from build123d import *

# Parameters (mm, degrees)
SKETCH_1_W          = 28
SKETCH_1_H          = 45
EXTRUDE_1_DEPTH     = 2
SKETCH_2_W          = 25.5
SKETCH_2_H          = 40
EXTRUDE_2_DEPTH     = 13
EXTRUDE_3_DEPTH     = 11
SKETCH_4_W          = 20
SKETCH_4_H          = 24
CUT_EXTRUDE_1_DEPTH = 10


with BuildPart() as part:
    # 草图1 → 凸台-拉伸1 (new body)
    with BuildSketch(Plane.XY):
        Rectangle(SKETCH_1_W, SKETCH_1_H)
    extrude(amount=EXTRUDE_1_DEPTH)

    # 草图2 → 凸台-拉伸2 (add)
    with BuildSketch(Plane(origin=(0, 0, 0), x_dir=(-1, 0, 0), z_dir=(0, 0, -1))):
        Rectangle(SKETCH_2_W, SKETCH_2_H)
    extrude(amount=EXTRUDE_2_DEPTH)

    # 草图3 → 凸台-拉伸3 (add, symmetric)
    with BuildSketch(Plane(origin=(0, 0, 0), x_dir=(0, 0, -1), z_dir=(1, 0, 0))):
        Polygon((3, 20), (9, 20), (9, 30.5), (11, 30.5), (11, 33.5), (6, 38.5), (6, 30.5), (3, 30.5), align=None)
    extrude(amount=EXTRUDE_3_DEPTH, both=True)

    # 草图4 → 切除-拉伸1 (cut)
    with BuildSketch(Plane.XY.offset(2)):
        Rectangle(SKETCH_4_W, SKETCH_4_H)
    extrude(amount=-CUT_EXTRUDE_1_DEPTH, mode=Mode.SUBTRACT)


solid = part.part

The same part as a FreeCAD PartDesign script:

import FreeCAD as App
import Part
import Sketcher


def add_polygon(sketch, points):
    """Adds a closed chain of lines whose ends are joined by coincident constraints."""
    first, n = sketch.GeometryCount, len(points)
    for a, b in zip(points, points[1:] + points[:1]):
        sketch.addGeometry(Part.LineSegment(App.Vector(*a, 0), App.Vector(*b, 0)), False)
    for i in range(n):
        sketch.addConstraint(Sketcher.Constraint("Coincident", first + i, 2, first + (i + 1) % n, 1))

doc = App.newDocument("Part")
body = doc.addObject("PartDesign::Body", "Body")

# Sketch on XY plane
sketch1 = body.newObject("Sketcher::SketchObject", "Sketch")
sketch1.AttachmentSupport = (doc.getObject("XY_Plane"), [""])
sketch1.MapMode = "FlatFace"
add_polygon(sketch1, [(-14, 22.5), (-14, -22.5), (14, -22.5), (14, 22.5)])  # lines 0-3
sketch1.addConstraint(Sketcher.Constraint("Vertical", 0))
sketch1.addConstraint(Sketcher.Constraint("Horizontal", 1))
sketch1.addConstraint(Sketcher.Constraint("Vertical", 2))
sketch1.addConstraint(Sketcher.Constraint("Horizontal", 3))
sketch1.addConstraint(Sketcher.Constraint("Symmetric", 0, 2, 2, 2, -1, 1))
sketch1.addConstraint(Sketcher.Constraint("DistanceX", 1, 1, 1, 2, 28.0))
sketch1.addConstraint(Sketcher.Constraint("DistanceY", 0, 2, 0, 1, 45.0))
pad1 = body.newObject("PartDesign::Pad", "Pad")
pad1.Profile = sketch1
pad1.Length = 2

# Sketch on XY plane
sketch2 = body.newObject("Sketcher::SketchObject", "Sketch001")
sketch2.AttachmentSupport = (doc.getObject("XY_Plane"), [""])
sketch2.MapMode = "FlatFace"
add_polygon(sketch2, [(12.75, 20), (12.75, -20), (-12.75, -20), (-12.75, 20)])  # lines 0-3
sketch2.addConstraint(Sketcher.Constraint("Vertical", 0))
sketch2.addConstraint(Sketcher.Constraint("Horizontal", 1))
sketch2.addConstraint(Sketcher.Constraint("Vertical", 2))
sketch2.addConstraint(Sketcher.Constraint("Horizontal", 3))
sketch2.addConstraint(Sketcher.Constraint("Symmetric", 0, 2, 2, 2, -1, 1))
sketch2.addConstraint(Sketcher.Constraint("DistanceY", 0, 2, 0, 1, 40.0))
sketch2.addConstraint(Sketcher.Constraint("DistanceX", 1, 2, 1, 1, 25.5))
pad2 = body.newObject("PartDesign::Pad", "Pad001")
pad2.Profile = sketch2
pad2.Length = 13
pad2.Reversed = True

# Sketch on YZ plane
sketch3 = body.newObject("Sketcher::SketchObject", "Sketch002")
sketch3.AttachmentSupport = (doc.getObject("YZ_Plane"), [""])
sketch3.MapMode = "FlatFace"
add_polygon(sketch3, [(20, -3), (20, -9), (30.5, -9), (30.5, -11), (33.5, -11), (38.5, -6), (30.5, -6), (30.5, -3)])  # lines 0-7
sketch3.addConstraint(Sketcher.Constraint("Vertical", 0))
sketch3.addConstraint(Sketcher.Constraint("Horizontal", 1))
sketch3.addConstraint(Sketcher.Constraint("Vertical", 2))
sketch3.addConstraint(Sketcher.Constraint("Horizontal", 3))
sketch3.addConstraint(Sketcher.Constraint("Horizontal", 5))
sketch3.addConstraint(Sketcher.Constraint("Vertical", 6))
sketch3.addConstraint(Sketcher.Constraint("Horizontal", 7))
sketch3.addConstraint(Sketcher.Constraint("Vertical", 2, 2, 5, 2))
sketch3.addConstraint(Sketcher.Constraint("Equal", 3, 6))
sketch3.addConstraint(Sketcher.Constraint("DistanceX", 3, 1, 3, 2, 3.0))
sketch3.addConstraint(Sketcher.Constraint("DistanceX", 5, 2, 5, 1, 8.0))
sketch3.addConstraint(Sketcher.Constraint("DistanceY", 0, 2, 0, 1, 6.0))
sketch3.addConstraint(Sketcher.Constraint("DistanceY", 2, 2, 2, 1, 2.0))
sketch3.addConstraint(Sketcher.Constraint("DistanceX", 1, 1, 1, 2, 10.5))
sketch3.addConstraint(Sketcher.Constraint("DistanceX", -1, 1, 0, 2, 20.0))
sketch3.addConstraint(Sketcher.Constraint("DistanceY", 0, 2, -1, 1, 9.0))
pad3 = body.newObject("PartDesign::Pad", "Pad002")
pad3.Profile = sketch3
pad3.Length = 22
pad3.Midplane = True

# Sketch on XY plane
sketch4 = body.newObject("Sketcher::SketchObject", "Sketch003")
sketch4.AttachmentSupport = (doc.getObject("XY_Plane"), [""])
sketch4.MapMode = "FlatFace"
sketch4.AttachmentOffset = App.Placement(App.Vector(0, 0, 2), App.Rotation())
add_polygon(sketch4, [(-10, 12), (-10, -12), (10, -12), (10, 12)])  # lines 0-3
sketch4.addConstraint(Sketcher.Constraint("Vertical", 0))
sketch4.addConstraint(Sketcher.Constraint("Horizontal", 1))
sketch4.addConstraint(Sketcher.Constraint("Vertical", 2))
sketch4.addConstraint(Sketcher.Constraint("Horizontal", 3))
sketch4.addConstraint(Sketcher.Constraint("Symmetric", 0, 2, 2, 2, -1, 1))
sketch4.addConstraint(Sketcher.Constraint("DistanceX", 1, 1, 1, 2, 20.0))
sketch4.addConstraint(Sketcher.Constraint("DistanceY", 0, 2, 0, 1, 24.0))
pocket1 = body.newObject("PartDesign::Pocket", "Pocket")
pocket1.Profile = sketch4
pocket1.Length = 10

doc.recompute()
